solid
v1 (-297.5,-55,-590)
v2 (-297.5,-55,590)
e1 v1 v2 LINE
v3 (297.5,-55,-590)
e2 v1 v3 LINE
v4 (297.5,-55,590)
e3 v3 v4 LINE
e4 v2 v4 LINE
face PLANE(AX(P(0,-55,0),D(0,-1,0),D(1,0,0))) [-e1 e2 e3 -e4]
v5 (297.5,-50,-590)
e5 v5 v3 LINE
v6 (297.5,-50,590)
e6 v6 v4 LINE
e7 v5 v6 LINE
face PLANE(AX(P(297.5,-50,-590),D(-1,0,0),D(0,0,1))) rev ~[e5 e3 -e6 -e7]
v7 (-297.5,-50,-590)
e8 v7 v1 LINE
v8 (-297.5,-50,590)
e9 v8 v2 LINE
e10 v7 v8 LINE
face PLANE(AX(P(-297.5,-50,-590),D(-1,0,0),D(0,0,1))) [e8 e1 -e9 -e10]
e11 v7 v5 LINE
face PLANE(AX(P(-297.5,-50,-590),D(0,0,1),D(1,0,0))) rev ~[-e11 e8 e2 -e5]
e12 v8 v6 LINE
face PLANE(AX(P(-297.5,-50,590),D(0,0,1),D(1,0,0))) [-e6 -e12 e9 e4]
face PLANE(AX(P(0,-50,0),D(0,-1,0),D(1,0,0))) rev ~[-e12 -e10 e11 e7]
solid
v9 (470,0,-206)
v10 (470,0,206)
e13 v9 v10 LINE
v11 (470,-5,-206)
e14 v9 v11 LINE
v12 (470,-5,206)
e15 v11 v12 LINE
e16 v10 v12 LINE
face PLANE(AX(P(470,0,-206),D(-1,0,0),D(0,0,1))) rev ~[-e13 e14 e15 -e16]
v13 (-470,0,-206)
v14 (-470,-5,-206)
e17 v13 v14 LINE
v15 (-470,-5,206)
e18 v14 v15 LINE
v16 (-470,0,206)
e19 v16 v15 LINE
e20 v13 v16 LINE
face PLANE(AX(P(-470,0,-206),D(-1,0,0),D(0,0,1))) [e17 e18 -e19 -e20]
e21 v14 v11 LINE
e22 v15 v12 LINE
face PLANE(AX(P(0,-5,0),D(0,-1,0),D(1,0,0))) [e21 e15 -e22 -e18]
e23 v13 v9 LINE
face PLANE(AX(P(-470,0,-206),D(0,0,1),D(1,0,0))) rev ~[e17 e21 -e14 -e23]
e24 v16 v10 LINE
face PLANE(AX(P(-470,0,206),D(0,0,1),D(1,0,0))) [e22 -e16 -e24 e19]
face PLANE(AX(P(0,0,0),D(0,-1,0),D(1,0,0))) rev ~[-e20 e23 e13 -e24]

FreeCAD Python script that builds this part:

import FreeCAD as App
import Part
import Sketcher
from FreeCAD import Vector
Q = App.Units.Quantity


def add_polygon(sketch, points):
    """Adds a closed chain of lines whose ends are joined by coincident constraints."""
    first, n = sketch.GeometryCount, len(points)
    for a, b in zip(points, points[1:] + points[:1]):
        sketch.addGeometry(Part.LineSegment(App.Vector(*a, 0), App.Vector(*b, 0)), False)
    for i in range(n):
        sketch.addConstraint(Sketcher.Constraint("Coincident", first + i, 2, first + (i + 1) % n, 1))

doc = App.newDocument("Part")
params = doc.addObject("Spreadsheet::Sheet", "Params")
for row, (alias, value) in enumerate([
    ("sketch1_width", "940 mm"),
    ("sketch1_height", "412 mm"),
    ("pad1_length", "5 mm"),
    ("sketch2_width", "595 mm"),
    ("sketch2_height", "1180 mm"),
    ("pad2_length", "5 mm"),
], start=1):
    params.set(f"A{row}", alias)
    params.set(f"B{row}", "=" + value)
    params.setAlias(f"B{row}", alias)

body = doc.addObject("PartDesign::Body", "Body")

sketch1 = doc.addObject("Sketcher::SketchObject", "Sketch")
body.addObject(sketch1)
sketch1.AttachmentSupport = (doc.XZ_Plane, [""])
sketch1.MapMode = "FlatFace"
add_polygon(sketch1, [(-470, 206), (-470, -206), (470, -206), (470, 206)])
sketch1.addConstraint([
    Sketcher.Constraint("Vertical", 0),
    Sketcher.Constraint("Horizontal", 1),
    Sketcher.Constraint("Vertical", 2),
    Sketcher.Constraint("Horizontal", 3),
    Sketcher.Constraint("Symmetric", 0, 2, 2, 2, -1, 1),
    Sketcher.Constraint("DistanceX", 1, 1, 1, 2, Q("940 mm")),
    Sketcher.Constraint("DistanceY", 0, 2, 0, 1, Q("412 mm")),
])
sketch1.setExpression("Constraints[9]", "Params.sketch1_width")
sketch1.setExpression("Constraints[10]", "Params.sketch1_height")
pad1 = doc.addObject("PartDesign::Pad", "Pad")
body.addObject(pad1)
pad1.Profile = sketch1
pad1.setExpression("Length", "Params.pad1_length")
body2 = doc.addObject("PartDesign::Body", "Body001")

sketch2 = doc.addObject("Sketcher::SketchObject", "Sketch001")
body2.addObject(sketch2)
sketch2.AttachmentSupport = (doc.getObject("XZ_Plane001"), [""])
sketch2.MapMode = "FlatFace"
sketch2.AttachmentOffset = App.Placement(Vector(0, 0, 50), App.Rotation())
add_polygon(sketch2, [(-298, 590), (-298, -590), (298, -590), (298, 590)])
sketch2.addConstraint([
    Sketcher.Constraint("Vertical", 0),
    Sketcher.Constraint("Horizontal", 1),
    Sketcher.Constraint("Vertical", 2),
    Sketcher.Constraint("Horizontal", 3),
    Sketcher.Constraint("Symmetric", 0, 2, 2, 2, -1, 1),
    Sketcher.Constraint("DistanceX", 1, 1, 1, 2, Q("595 mm")),
    Sketcher.Constraint("DistanceY", 0, 2, 0, 1, Q("1180 mm")),
])
sketch2.setExpression("Constraints[9]", "Params.sketch2_width")
sketch2.setExpression("Constraints[10]", "Params.sketch2_height")
pad2 = doc.addObject("PartDesign::Pad", "Pad001")
body2.addObject(pad2)
pad2.Profile = sketch2
pad2.setExpression("Length", "Params.pad2_length")

doc.recompute()
